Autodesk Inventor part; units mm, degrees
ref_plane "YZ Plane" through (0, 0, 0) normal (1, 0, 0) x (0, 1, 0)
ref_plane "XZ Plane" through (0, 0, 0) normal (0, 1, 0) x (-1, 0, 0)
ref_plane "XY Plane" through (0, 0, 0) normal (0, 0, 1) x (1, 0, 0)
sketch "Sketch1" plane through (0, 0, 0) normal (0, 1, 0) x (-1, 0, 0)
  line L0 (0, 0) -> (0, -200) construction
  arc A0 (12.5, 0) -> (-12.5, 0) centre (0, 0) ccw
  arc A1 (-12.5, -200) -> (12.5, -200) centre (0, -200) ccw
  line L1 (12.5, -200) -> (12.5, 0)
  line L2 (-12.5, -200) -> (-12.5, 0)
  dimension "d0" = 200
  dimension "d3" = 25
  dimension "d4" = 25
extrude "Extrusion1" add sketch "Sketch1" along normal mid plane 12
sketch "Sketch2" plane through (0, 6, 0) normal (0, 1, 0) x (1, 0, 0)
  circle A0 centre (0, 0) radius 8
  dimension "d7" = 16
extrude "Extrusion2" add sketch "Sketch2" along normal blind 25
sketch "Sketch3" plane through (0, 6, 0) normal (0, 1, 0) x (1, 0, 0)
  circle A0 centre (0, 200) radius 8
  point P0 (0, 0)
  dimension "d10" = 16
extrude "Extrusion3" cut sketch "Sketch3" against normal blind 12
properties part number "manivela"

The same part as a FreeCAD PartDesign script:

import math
import FreeCAD as App
import Part
import Sketcher

doc = App.newDocument("Part")
params = doc.addObject("Spreadsheet::Sheet", "Params")
for row, (alias, value) in enumerate([
    ("sketch1_radius", "12.5 mm"),
    ("sketch1_height", "200 mm"),
    ("pad1_length", "12 mm"),
    ("sketch2_diameter", "16 mm"),
    ("pad2_length", "25 mm"),
    ("sketch3_diameter", "16 mm"),
    ("pocket1_length", "12 mm"),
], start=1):
    params.set(f"A{row}", alias)
    params.set(f"B{row}", "=" + value)
    params.setAlias(f"B{row}", alias)

body = doc.addObject("PartDesign::Body", "Body")

# Sketch on XZ plane
sketch1 = body.newObject("Sketcher::SketchObject", "Sketch")
sketch1.AttachmentSupport = (doc.getObject("XZ_Plane"), [""])
sketch1.MapMode = "FlatFace"
sketch1.addGeometry([
    Part.LineSegment(App.Vector(-12, -200, 0), App.Vector(-12, 0, 0)),
    Part.ArcOfCircle(Part.Circle(App.Vector(0, 0, 0), App.Vector(0, 0, 1), 12), math.radians(0), math.radians(180)),
    Part.LineSegment(App.Vector(12, 0, 0), App.Vector(12, -200, 0)),
    Part.ArcOfCircle(Part.Circle(App.Vector(0, -200, 0), App.Vector(0, 0, 1), 12), math.radians(180), math.radians(360)),
], False)
sketch1.addConstraint([
    Sketcher.Constraint("Tangent", 0, 2, 1, 2),
    Sketcher.Constraint("Tangent", 1, 1, 2, 1),
    Sketcher.Constraint("Tangent", 2, 2, 3, 2),
    Sketcher.Constraint("Tangent", 3, 1, 0, 1),
    Sketcher.Constraint("Vertical", 0),
    Sketcher.Constraint("Vertical", 2),
    Sketcher.Constraint("Coincident", 1, 3, -1, 1),
    Sketcher.Constraint("Radius", 1, 12.5),
    Sketcher.Constraint("DistanceY", 0, 1, 0, 2, 200.0),
])
sketch1.setExpression("Constraints[7]", "Params.sketch1_radius")
sketch1.setExpression("Constraints[8]", "Params.sketch1_height")
pad1 = body.newObject("PartDesign::Pad", "Pad")
pad1.Profile = sketch1
pad1.setExpression("Length", "Params.pad1_length")
pad1.Midplane = True

# Sketch on XZ plane
sketch2 = body.newObject("Sketcher::SketchObject", "Sketch001")
sketch2.AttachmentSupport = (doc.getObject("XZ_Plane"), [""])
sketch2.MapMode = "FlatFace"
sketch2.AttachmentOffset = App.Placement(App.Vector(0, 0, -6), App.Rotation())
sketch2.addGeometry(Part.Circle(App.Vector(0, 0, 0), App.Vector(0, 0, 1), 8), False)
sketch2.addConstraint([
    Sketcher.Constraint("Coincident", 0, 3, -1, 1),
    Sketcher.Constraint("Diameter", 0, 16.0),
])
sketch2.setExpression("Constraints[1]", "Params.sketch2_diameter")
pad2 = body.newObject("PartDesign::Pad", "Pad001")
pad2.Profile = sketch2
pad2.setExpression("Length", "Params.pad2_length")
pad2.Reversed = True

# Sketch on XZ plane
sketch3 = body.newObject("Sketcher::SketchObject", "Sketch002")
sketch3.AttachmentSupport = (doc.getObject("XZ_Plane"), [""])
sketch3.MapMode = "FlatFace"
sketch3.AttachmentOffset = App.Placement(App.Vector(0, 0, -6), App.Rotation())
sketch3.addGeometry(Part.Circle(App.Vector(0, -200, 0), App.Vector(0, 0, 1), 8), False)
sketch3.addConstraint([
    Sketcher.Constraint("PointOnObject", 0, 3, -2),
    Sketcher.Constraint("Diameter", 0, 16.0),
    Sketcher.Constraint("DistanceY", 0, 3, -1, 1, 200.0),
])
sketch3.setExpression("Constraints[1]", "Params.sketch3_diameter")
pocket1 = body.newObject("PartDesign::Pocket", "Pocket")
pocket1.Profile = sketch3
pocket1.setExpression("Length", "Params.pocket1_length")
pocket1.Reversed = True

doc.recompute()
